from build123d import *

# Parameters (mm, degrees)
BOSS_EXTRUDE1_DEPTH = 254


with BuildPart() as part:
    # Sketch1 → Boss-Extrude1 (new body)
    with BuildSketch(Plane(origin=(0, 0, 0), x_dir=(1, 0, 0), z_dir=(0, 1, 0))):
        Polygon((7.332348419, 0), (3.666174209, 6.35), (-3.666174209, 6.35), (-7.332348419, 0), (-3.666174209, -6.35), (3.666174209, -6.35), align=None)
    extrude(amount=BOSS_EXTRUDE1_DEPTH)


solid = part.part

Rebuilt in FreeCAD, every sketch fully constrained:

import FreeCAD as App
import Part
import Sketcher

V = App.Vector
Q = App.Units.Quantity

doc = App.newDocument("Part")
body = doc.addObject("PartDesign::Body", "Body")

sketch1 = doc.addObject("Sketcher::SketchObject", "Sketch")
body.addObject(sketch1)
sketch1.AttachmentSupport = (doc.XZ_Plane, [""])
sketch1.MapMode = "FlatFace"
sketch1.addGeometry([
    Part.LineSegment(V(7, 0, 0), V(4, -6, 0)),
    Part.LineSegment(V(4, -6, 0), V(-4, -6, 0)),
    Part.LineSegment(V(-4, -6, 0), V(-7, 0, 0)),
    Part.LineSegment(V(-7, 0, 0), V(-4, 6, 0)),
    Part.LineSegment(V(-4, 6, 0), V(4, 6, 0)),
    Part.LineSegment(V(4, 6, 0), V(7, 0, 0)),
], False)
sketch1.addConstraint([
    Sketcher.Constraint("Coincident", 0, 2, 1, 1),
    Sketcher.Constraint("Coincident", 1, 2, 2, 1),
    Sketcher.Constraint("Coincident", 2, 2, 3, 1),
    Sketcher.Constraint("Coincident", 3, 2, 4, 1),
    Sketcher.Constraint("Coincident", 4, 2, 5, 1),
    Sketcher.Constraint("Coincident", 5, 2, 0, 1),
    Sketcher.Constraint("Horizontal", 1),
    Sketcher.Constraint("Horizontal", 4),
    Sketcher.Constraint("Symmetric", 0, 2, 3, 2, -1, 1),
    Sketcher.Constraint("Symmetric", 2, 2, 5, 2, -1, 1),
    Sketcher.Constraint("PointOnObject", 2, 2, -1),
    Sketcher.Constraint("Parallel", 2, 5),
    Sketcher.Constraint("Vertical", 1, 2, 3, 2),
    Sketcher.Constraint("Angle", 0, Q("-120 deg")),
    Sketcher.Constraint("DistanceY", 1, 2, 3, 2, Q("0.5 in")),
    Sketcher.Constraint("DistanceX", 1, 2, 1, 1, 7.332348),
])
pad1 = doc.addObject("PartDesign::Pad", "Pad")
body.addObject(pad1)
pad1.Profile = sketch1
pad1.Length = Q("10 in")
pad1.Reversed = True

doc.recompute()
